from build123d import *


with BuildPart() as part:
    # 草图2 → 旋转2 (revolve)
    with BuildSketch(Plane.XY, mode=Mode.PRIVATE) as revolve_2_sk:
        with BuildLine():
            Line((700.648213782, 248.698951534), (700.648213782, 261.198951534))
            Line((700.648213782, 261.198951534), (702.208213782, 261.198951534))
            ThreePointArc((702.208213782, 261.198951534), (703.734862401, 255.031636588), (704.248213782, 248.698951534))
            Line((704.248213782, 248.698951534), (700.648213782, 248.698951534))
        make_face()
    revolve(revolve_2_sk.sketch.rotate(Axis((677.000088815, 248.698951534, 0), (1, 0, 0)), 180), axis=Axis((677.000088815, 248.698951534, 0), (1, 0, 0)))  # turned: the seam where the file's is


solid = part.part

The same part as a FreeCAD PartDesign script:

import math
import FreeCAD as App
import Part
import Sketcher
Q = App.Units.Quantity

doc = App.newDocument("Part")
body = doc.addObject("PartDesign::Body", "Body")

# Sketch on XY plane
sketch1 = body.newObject("Sketcher::SketchObject", "Sketch")
sketch1.AttachmentSupport = (doc.getObject("XY_Plane"), [""])
sketch1.MapMode = "FlatFace"
sketch1.addGeometry(Part.LineSegment(App.Vector(700.6, 261.2, 0), App.Vector(700.6, 248.7, 0)), False)
sketch1.addGeometry(Part.LineSegment(App.Vector(700.6, 248.7, 0), App.Vector(704.2, 248.7, 0)), False)
sketch1.addGeometry(Part.ArcOfCircle(Part.Circle(App.Vector(664.9, 248.7, 0), App.Vector(0, 0, 1), 39.3), math.radians(0), math.radians(18.54)), False)
sketch1.addGeometry(Part.LineSegment(App.Vector(702.2, 261.2, 0), App.Vector(700.6, 261.2, 0)), False)
sketch1.addGeometry(Part.LineSegment(App.Vector(664.9, 248.7, 0), App.Vector(704.2, 248.7, 0)), True)  # axis
sketch1.addConstraint(Sketcher.Constraint("Coincident", 0, 2, 1, 1))
sketch1.addConstraint(Sketcher.Constraint("Coincident", 1, 2, 2, 1))
sketch1.addConstraint(Sketcher.Constraint("Coincident", 2, 2, 3, 1))
sketch1.addConstraint(Sketcher.Constraint("Coincident", 3, 2, 0, 1))
sketch1.addConstraint(Sketcher.Constraint("Vertical", 0))
sketch1.addConstraint(Sketcher.Constraint("Horizontal", 1))
sketch1.addConstraint(Sketcher.Constraint("Horizontal", 3))
sketch1.addConstraint(Sketcher.Constraint("Horizontal", 4))
sketch1.addConstraint(Sketcher.Constraint("Coincident", 4, 1, 2, 3))
sketch1.addConstraint(Sketcher.Constraint("Coincident", 4, 2, 1, 2))
sketch1.addConstraint(Sketcher.Constraint("DistanceX", 1, 1, 1, 2, Q("3.6 mm")))
sketch1.addConstraint(Sketcher.Constraint("DistanceY", 0, 2, 0, 1, Q("12.5 mm")))
sketch1.addConstraint(Sketcher.Constraint("DistanceX", 3, 2, 3, 1, Q("1.56 mm")))
sketch1.addConstraint(Sketcher.Constraint("DistanceY", -1, 1, 2, 3, Q("248.698952 mm")))
sketch1.addConstraint(Sketcher.Constraint("DistanceX", -1, 1, 2, 3, Q("664.931645 mm")))
revolution = body.newObject("PartDesign::Revolution", "Revolution")
revolution.Profile = sketch1
revolution.ReferenceAxis = (sketch1, ["Axis0"])
revolution.Angle = 360

doc.recompute()
